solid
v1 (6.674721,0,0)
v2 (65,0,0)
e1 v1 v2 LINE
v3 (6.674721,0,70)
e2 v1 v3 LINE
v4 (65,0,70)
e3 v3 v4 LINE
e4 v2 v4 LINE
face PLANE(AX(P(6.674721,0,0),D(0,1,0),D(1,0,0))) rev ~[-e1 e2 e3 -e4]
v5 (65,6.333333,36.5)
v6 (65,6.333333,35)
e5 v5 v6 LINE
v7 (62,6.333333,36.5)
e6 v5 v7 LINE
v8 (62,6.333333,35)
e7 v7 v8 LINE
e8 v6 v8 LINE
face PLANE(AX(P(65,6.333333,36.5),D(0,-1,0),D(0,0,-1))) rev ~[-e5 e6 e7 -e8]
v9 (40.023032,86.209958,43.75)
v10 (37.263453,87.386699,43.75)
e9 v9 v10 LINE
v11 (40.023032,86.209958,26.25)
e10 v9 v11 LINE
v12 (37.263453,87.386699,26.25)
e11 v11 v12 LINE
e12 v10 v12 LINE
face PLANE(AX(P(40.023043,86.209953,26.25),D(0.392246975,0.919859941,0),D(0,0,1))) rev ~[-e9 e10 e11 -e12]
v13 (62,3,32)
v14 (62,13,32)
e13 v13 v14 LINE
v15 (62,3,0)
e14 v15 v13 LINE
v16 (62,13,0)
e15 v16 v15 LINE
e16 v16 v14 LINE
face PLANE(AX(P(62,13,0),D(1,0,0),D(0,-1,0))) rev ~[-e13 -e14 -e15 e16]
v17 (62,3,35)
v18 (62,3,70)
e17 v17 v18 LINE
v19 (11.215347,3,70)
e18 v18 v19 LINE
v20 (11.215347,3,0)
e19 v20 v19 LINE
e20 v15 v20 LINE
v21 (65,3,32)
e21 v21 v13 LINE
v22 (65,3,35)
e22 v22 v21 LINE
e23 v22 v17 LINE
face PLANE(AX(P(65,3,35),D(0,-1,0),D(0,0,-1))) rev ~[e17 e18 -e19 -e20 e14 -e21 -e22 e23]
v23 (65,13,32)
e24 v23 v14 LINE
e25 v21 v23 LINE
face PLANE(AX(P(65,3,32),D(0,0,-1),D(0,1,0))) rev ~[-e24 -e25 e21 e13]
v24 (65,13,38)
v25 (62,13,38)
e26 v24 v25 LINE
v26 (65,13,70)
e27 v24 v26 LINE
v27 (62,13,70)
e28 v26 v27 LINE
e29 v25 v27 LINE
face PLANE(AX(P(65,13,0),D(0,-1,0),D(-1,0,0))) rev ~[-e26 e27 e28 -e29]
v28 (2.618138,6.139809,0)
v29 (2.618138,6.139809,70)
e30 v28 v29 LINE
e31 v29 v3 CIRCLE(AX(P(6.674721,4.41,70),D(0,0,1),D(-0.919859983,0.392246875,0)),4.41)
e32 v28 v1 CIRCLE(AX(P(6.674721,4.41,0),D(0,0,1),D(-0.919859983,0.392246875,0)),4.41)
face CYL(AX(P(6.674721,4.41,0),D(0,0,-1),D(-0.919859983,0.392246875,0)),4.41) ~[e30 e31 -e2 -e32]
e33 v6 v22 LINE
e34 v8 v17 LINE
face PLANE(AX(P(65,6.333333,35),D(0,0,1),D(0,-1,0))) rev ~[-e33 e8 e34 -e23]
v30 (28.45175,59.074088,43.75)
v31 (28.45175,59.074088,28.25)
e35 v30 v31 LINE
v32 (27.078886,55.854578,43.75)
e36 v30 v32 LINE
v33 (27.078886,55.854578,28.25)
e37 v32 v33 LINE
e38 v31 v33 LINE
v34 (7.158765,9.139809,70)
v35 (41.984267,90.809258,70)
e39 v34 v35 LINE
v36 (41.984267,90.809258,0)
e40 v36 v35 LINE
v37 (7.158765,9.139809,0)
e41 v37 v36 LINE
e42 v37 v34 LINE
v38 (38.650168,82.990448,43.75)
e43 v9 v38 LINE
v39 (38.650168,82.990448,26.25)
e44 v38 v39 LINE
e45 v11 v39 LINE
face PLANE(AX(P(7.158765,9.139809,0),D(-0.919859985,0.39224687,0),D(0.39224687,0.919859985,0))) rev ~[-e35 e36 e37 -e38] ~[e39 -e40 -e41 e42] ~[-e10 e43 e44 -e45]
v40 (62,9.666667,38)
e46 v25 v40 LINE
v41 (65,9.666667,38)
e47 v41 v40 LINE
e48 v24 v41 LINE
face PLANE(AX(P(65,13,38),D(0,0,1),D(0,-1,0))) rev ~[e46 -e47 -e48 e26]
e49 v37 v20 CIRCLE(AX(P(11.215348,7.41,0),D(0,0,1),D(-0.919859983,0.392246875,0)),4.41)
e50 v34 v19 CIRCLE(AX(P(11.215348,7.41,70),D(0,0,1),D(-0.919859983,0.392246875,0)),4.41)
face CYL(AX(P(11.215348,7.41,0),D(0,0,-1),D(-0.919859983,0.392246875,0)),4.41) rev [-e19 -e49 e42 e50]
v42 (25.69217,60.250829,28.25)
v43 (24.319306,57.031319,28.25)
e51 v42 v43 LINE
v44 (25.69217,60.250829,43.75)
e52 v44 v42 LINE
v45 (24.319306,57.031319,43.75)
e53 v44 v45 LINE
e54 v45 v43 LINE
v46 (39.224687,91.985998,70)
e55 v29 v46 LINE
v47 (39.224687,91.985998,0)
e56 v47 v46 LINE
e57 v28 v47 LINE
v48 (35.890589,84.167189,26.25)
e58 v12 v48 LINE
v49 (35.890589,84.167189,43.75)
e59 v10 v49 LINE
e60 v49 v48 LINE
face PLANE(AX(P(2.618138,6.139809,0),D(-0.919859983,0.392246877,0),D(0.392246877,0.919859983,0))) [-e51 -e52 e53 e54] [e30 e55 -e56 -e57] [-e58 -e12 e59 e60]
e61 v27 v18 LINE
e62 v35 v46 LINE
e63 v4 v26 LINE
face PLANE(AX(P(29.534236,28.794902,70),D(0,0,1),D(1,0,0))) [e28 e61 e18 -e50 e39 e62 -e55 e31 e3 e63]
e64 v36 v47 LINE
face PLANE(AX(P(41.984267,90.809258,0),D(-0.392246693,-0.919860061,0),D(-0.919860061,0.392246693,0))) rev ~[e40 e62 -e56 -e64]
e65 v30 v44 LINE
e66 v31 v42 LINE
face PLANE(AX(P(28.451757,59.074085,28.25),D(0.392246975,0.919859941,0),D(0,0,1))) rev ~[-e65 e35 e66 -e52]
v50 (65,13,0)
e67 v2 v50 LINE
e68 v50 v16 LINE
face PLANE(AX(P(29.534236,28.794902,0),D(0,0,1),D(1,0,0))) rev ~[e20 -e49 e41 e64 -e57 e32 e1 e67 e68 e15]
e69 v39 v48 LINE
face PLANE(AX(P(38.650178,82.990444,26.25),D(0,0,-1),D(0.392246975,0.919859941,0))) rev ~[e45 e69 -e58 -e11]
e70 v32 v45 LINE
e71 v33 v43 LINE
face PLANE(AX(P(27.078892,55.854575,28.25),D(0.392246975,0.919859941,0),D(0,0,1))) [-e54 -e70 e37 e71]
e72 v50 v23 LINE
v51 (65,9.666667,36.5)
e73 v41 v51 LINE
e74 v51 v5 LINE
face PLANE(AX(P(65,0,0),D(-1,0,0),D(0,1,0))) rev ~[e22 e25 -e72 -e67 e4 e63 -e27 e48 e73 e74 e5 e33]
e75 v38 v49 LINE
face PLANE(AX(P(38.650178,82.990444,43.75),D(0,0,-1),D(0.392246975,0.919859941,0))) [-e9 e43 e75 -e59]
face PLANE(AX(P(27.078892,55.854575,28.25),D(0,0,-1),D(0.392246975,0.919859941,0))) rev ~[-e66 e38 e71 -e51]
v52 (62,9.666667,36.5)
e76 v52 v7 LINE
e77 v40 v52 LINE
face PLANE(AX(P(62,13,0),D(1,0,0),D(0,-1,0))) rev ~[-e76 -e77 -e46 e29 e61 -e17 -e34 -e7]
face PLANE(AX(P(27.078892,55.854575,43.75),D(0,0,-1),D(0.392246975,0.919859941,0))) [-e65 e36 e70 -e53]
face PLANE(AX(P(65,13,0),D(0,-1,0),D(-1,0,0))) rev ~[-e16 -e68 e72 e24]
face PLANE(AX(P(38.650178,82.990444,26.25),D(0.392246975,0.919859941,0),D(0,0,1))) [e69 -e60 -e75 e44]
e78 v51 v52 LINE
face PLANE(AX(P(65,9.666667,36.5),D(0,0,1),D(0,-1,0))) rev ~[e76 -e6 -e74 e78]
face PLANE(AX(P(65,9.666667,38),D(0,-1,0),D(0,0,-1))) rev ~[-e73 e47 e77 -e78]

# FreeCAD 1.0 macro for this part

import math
import FreeCAD as App
import Part
import Sketcher
Q = App.Units.Quantity

doc = App.newDocument("Part")
body = doc.addObject("PartDesign::Body", "Body")

sketch1 = doc.addObject("Sketcher::SketchObject", "Sketch")
body.addObject(sketch1)
sketch1.AttachmentSupport = (doc.XY_Plane, [""])
sketch1.MapMode = "FlatFace"
sketch1.addGeometry([
    Part.LineSegment(App.Vector(6.7, 0, 0), App.Vector(65, 0, 0)),
    Part.LineSegment(App.Vector(65, 0, 0), App.Vector(65, 13, 0)),
    Part.LineSegment(App.Vector(65, 13, 0), App.Vector(62, 13, 0)),
    Part.LineSegment(App.Vector(62, 13, 0), App.Vector(62, 3, 0)),
    Part.LineSegment(App.Vector(62, 3, 0), App.Vector(11.2, 3, 0)),
    Part.ArcOfCircle(Part.Circle(App.Vector(11.2, 7.4, 0), App.Vector(0, 0, 1), 4.4), math.radians(157), math.radians(270)),
    Part.LineSegment(App.Vector(7.2, 9.1, 0), App.Vector(42, 90.8, 0)),
    Part.LineSegment(App.Vector(42, 90.8, 0), App.Vector(39.2, 92, 0)),
    Part.LineSegment(App.Vector(39.2, 92, 0), App.Vector(2.6, 6.1, 0)),
    Part.ArcOfCircle(Part.Circle(App.Vector(6.7, 4.4, 0), App.Vector(0, 0, 1), 4.4), math.radians(157), math.radians(270)),
], False)
sketch1.addConstraint([
    Sketcher.Constraint("Coincident", 0, 2, 1, 1),
    Sketcher.Constraint("Coincident", 1, 2, 2, 1),
    Sketcher.Constraint("Coincident", 2, 2, 3, 1),
    Sketcher.Constraint("Coincident", 3, 2, 4, 1),
    Sketcher.Constraint("Tangent", 4, 2, 5, 2),
    Sketcher.Constraint("Tangent", 5, 1, 6, 1),
    Sketcher.Constraint("Coincident", 6, 2, 7, 1),
    Sketcher.Constraint("Coincident", 7, 2, 8, 1),
    Sketcher.Constraint("Tangent", 8, 2, 9, 1),
    Sketcher.Constraint("Tangent", 9, 2, 0, 1),
    Sketcher.Constraint("Horizontal", 0),
    Sketcher.Constraint("Vertical", 1),
    Sketcher.Constraint("Horizontal", 2),
    Sketcher.Constraint("Vertical", 3),
    Sketcher.Constraint("Horizontal", 4),
    Sketcher.Constraint("Equal", 5, 9),
    Sketcher.Constraint("PointOnObject", 0, 2, -1),
    Sketcher.Constraint("Perpendicular", 6, 7),
    Sketcher.Constraint("Perpendicular", 7, 8),
    Sketcher.Constraint("DistanceX", 2, 2, 2, 1, Q("3 mm")),
    Sketcher.Constraint("DistanceY", 1, 1, 1, 2, Q("13 mm")),
    Sketcher.Constraint("DistanceY", 3, 2, 3, 1, Q("10 mm")),
    Sketcher.Constraint("Radius", 5, Q("4.41 mm")),
    Sketcher.Constraint("Distance", 7, Q("3 mm")),
    Sketcher.Constraint("DistanceX", -1, 1, 0, 2, Q("65 mm")),
    Sketcher.Constraint("DistanceX", 0, 1, 0, 2, Q("58.325279 mm")),
    Sketcher.Constraint("Distance", 8, Q("93.325278 mm")),
    Sketcher.Constraint("DistanceX", 4, 2, 4, 1, Q("50.784653 mm")),
])
pad1 = doc.addObject("PartDesign::Pad", "Pad")
body.addObject(pad1)
pad1.Profile = sketch1
pad1.Length = 70

sketch2 = doc.addObject("Sketcher::SketchObject", "Sketch001")
body.addObject(sketch2)
sketch2.Placement = App.Placement(App.Vector(2.75958, -1.176741, 0), App.Rotation(App.Vector(0.392246975, 0.919859941, 0), App.Vector(0, 0, 1), App.Vector(0.919859941, -0.392246975, 0), "ZXY"))
sketch2.addGeometry([
    Part.LineSegment(App.Vector(91.5, 43.8, 0), App.Vector(91.5, 26.3, 0)),
    Part.LineSegment(App.Vector(91.5, 26.3, 0), App.Vector(95, 26.3, 0)),
    Part.LineSegment(App.Vector(95, 26.3, 0), App.Vector(95, 43.8, 0)),
    Part.LineSegment(App.Vector(95, 43.8, 0), App.Vector(91.5, 43.8, 0)),
    Part.LineSegment(App.Vector(62, 43.8, 0), App.Vector(62, 28.3, 0)),
    Part.LineSegment(App.Vector(62, 28.3, 0), App.Vector(65.5, 28.3, 0)),
    Part.LineSegment(App.Vector(65.5, 28.3, 0), App.Vector(65.5, 43.8, 0)),
    Part.LineSegment(App.Vector(65.5, 43.8, 0), App.Vector(62, 43.8, 0)),
], False)
sketch2.addConstraint([
    Sketcher.Constraint("Coincident", 0, 2, 1, 1),
    Sketcher.Constraint("Coincident", 1, 2, 2, 1),
    Sketcher.Constraint("Coincident", 2, 2, 3, 1),
    Sketcher.Constraint("Coincident", 3, 2, 0, 1),
    Sketcher.Constraint("Coincident", 4, 2, 5, 1),
    Sketcher.Constraint("Coincident", 5, 2, 6, 1),
    Sketcher.Constraint("Coincident", 6, 2, 7, 1),
    Sketcher.Constraint("Coincident", 7, 2, 4, 1),
    Sketcher.Constraint("Vertical", 0),
    Sketcher.Constraint("Horizontal", 1),
    Sketcher.Constraint("Vertical", 2),
    Sketcher.Constraint("Horizontal", 3),
    Sketcher.Constraint("Vertical", 4),
    Sketcher.Constraint("Horizontal", 5),
    Sketcher.Constraint("Vertical", 6),
    Sketcher.Constraint("Horizontal", 7),
    Sketcher.Constraint("Horizontal", 3, 2, 6, 2),
    Sketcher.Constraint("Equal", 3, 5),
    Sketcher.Constraint("DistanceX", 1, 1, 1, 2, Q("3.5 mm")),
    Sketcher.Constraint("DistanceY", 0, 2, 0, 1, Q("17.5 mm")),
    Sketcher.Constraint("DistanceY", 4, 2, 4, 1, Q("15.5 mm")),
    Sketcher.Constraint("DistanceX", -1, 1, 1, 2, Q("95 mm")),
    Sketcher.Constraint("DistanceX", -1, 1, 4, 2, Q("62 mm")),
    Sketcher.Constraint("DistanceY", -1, 1, 0, 2, Q("26.25 mm")),
])
pocket1 = doc.addObject("PartDesign::Pocket", "Pocket")
body.addObject(pocket1)
pocket1.Profile = sketch2
pocket1.Type = "ThroughAll"

sketch3 = doc.addObject("Sketcher::SketchObject", "Sketch002")
body.addObject(sketch3)
sketch3.AttachmentSupport = (doc.YZ_Plane, [""])
sketch3.MapMode = "FlatFace"
sketch3.AttachmentOffset = App.Placement(App.Vector(0, 0, 65), App.Rotation())
sketch3.addGeometry([
    Part.LineSegment(App.Vector(3, 35, 0), App.Vector(3, 32, 0)),
    Part.LineSegment(App.Vector(3, 32, 0), App.Vector(13, 32, 0)),
    Part.LineSegment(App.Vector(13, 32, 0), App.Vector(13, 38, 0)),
    Part.LineSegment(App.Vector(13, 38, 0), App.Vector(9.7, 38, 0)),
    Part.LineSegment(App.Vector(9.7, 38, 0), App.Vector(9.7, 36.5, 0)),
    Part.LineSegment(App.Vector(9.7, 36.5, 0), App.Vector(6.3, 36.5, 0)),
    Part.LineSegment(App.Vector(6.3, 36.5, 0), App.Vector(6.3, 35, 0)),
    Part.LineSegment(App.Vector(6.3, 35, 0), App.Vector(3, 35, 0)),
], False)
sketch3.addConstraint([
    Sketcher.Constraint("Coincident", 0, 2, 1, 1),
    Sketcher.Constraint("Coincident", 1, 2, 2, 1),
    Sketcher.Constraint("Coincident", 2, 2, 3, 1),
    Sketcher.Constraint("Coincident", 3, 2, 4, 1),
    Sketcher.Constraint("Coincident", 4, 2, 5, 1),
    Sketcher.Constraint("Coincident", 5, 2, 6, 1),
    Sketcher.Constraint("Coincident", 6, 2, 7, 1),
    Sketcher.Constraint("Coincident", 7, 2, 0, 1),
    Sketcher.Constraint("Vertical", 0),
    Sketcher.Constraint("Horizontal", 1),
    Sketcher.Constraint("Vertical", 2),
    Sketcher.Constraint("Horizontal", 3),
    Sketcher.Constraint("Vertical", 4),
    Sketcher.Constraint("Horizontal", 5),
    Sketcher.Constraint("Vertical", 6),
    Sketcher.Constraint("Horizontal", 7),
    Sketcher.Constraint("Equal", 3, 5),
    Sketcher.Constraint("Equal", 5, 7),
    Sketcher.Constraint("Equal", 4, 6),
    Sketcher.Constraint("DistanceX", 1, 1, 1, 2, Q("10 mm")),
    Sketcher.Constraint("DistanceY", 0, 2, 0, 1, Q("3 mm")),
    Sketcher.Constraint("DistanceY", 2, 1, 2, 2, Q("6 mm")),
    Sketcher.Constraint("DistanceX", -1, 1, 0, 2, Q("3 mm")),
    Sketcher.Constraint("DistanceY", -1, 1, 0, 2, Q("32 mm")),
])
pocket2 = doc.addObject("PartDesign::Pocket", "Pocket001")
body.addObject(pocket2)
pocket2.Profile = sketch3
pocket2.Length = 5

doc.recompute()
